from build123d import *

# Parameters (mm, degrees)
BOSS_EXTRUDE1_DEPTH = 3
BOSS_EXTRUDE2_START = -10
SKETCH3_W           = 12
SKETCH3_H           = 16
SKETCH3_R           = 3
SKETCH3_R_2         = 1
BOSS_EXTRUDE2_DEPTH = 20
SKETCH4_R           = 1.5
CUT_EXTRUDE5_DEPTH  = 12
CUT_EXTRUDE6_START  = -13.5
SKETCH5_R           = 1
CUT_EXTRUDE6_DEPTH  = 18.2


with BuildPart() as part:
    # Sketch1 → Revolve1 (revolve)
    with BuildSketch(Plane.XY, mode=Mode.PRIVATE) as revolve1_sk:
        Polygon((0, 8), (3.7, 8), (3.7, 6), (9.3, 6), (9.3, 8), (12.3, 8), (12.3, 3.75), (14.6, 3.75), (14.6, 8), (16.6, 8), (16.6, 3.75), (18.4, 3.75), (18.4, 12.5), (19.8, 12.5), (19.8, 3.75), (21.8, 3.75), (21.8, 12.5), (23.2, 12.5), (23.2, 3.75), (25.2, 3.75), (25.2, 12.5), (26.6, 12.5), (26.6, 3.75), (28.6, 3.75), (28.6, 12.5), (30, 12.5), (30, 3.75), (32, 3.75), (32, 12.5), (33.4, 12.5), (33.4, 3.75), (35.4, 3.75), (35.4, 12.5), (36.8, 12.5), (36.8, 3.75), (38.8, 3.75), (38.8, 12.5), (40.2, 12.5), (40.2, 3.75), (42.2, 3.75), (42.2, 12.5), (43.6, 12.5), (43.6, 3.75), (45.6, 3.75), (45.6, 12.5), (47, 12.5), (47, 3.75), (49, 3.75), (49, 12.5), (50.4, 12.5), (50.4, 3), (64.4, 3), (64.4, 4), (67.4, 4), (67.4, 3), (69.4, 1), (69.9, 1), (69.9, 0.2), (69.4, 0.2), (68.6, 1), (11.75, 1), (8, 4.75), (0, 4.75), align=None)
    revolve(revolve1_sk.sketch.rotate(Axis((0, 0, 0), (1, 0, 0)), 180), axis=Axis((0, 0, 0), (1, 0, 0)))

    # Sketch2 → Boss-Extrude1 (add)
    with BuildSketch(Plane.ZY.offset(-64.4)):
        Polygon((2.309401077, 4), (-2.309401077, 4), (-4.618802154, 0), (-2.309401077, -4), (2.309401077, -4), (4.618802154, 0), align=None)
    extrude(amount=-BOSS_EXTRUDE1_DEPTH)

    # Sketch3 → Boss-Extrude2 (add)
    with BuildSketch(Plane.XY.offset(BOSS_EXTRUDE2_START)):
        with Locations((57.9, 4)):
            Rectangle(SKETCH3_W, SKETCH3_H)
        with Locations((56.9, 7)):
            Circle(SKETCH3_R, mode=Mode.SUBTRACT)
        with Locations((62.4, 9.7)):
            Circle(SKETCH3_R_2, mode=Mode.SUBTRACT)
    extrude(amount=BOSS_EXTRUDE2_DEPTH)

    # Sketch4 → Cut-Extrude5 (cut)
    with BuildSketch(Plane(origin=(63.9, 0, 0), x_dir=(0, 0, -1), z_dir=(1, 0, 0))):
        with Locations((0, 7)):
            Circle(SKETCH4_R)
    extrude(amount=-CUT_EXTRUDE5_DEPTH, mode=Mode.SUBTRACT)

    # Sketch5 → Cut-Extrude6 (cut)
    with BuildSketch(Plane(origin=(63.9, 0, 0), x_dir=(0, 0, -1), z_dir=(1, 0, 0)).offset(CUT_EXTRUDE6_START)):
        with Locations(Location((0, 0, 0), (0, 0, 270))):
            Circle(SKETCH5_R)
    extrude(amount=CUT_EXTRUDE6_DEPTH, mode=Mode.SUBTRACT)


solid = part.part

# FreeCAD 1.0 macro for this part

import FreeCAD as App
import Part
import Sketcher
from FreeCAD import Vector
Q = App.Units.Quantity


def add_polygon(sketch, points):
    """Adds a closed chain of lines whose ends are joined by coincident constraints."""
    first, n = sketch.GeometryCount, len(points)
    for a, b in zip(points, points[1:] + points[:1]):
        sketch.addGeometry(Part.LineSegment(App.Vector(*a, 0), App.Vector(*b, 0)), False)
    for i in range(n):
        sketch.addConstraint(Sketcher.Constraint("Coincident", first + i, 2, first + (i + 1) % n, 1))

doc = App.newDocument("Part")
body = doc.addObject("PartDesign::Body", "Body")

# Sketch on XY plane
sketch1 = body.newObject("Sketcher::SketchObject", "Sketch")
sketch1.AttachmentSupport = (doc.getObject("XY_Plane"), [""])
sketch1.MapMode = "FlatFace"
add_polygon(sketch1, [(3.7, 8), (0, 8), (0, 4.8), (8, 4.8), (11.8, 1), (68.6, 1), (69.4, 0.2), (69.9, 0.2), (69.9, 1), (69.4, 1), (67.4, 3), (67.4, 4), (64.4, 4), (64.4, 3), (50.4, 3), (50.4, 12.5), (49, 12.5), (49, 3.8), (47, 3.8), (47, 12.5), (45.6, 12.5), (45.6, 3.8), (43.6, 3.8), (43.6, 12.5), (42.2, 12.5), (42.2, 3.8), (40.2, 3.8), (40.2, 12.5), (38.8, 12.5), (38.8, 3.8), (36.8, 3.8), (36.8, 12.5), (35.4, 12.5), (35.4, 3.8), (33.4, 3.8), (33.4, 12.5), (32, 12.5), (32, 3.8), (30, 3.8), (30, 12.5), (28.6, 12.5), (28.6, 3.8), (26.6, 3.8), (26.6, 12.5), (25.2, 12.5), (25.2, 3.8), (23.2, 3.8), (23.2, 12.5), (21.8, 12.5), (21.8, 3.8), (19.8, 3.8), (19.8, 12.5), (18.4, 12.5), (18.4, 3.8), (16.6, 3.8), (16.6, 8), (14.6, 8), (14.6, 3.8), (12.3, 3.8), (12.3, 8), (9.3, 8), (9.3, 6), (3.7, 6)])  # lines 0-62
sketch1.addConstraint([
    Sketcher.Constraint("Horizontal", 0),
    Sketcher.Constraint("Vertical", 1),
    Sketcher.Constraint("Horizontal", 2),
    Sketcher.Constraint("Horizontal", 4),
    Sketcher.Constraint("Horizontal", 6),
    Sketcher.Constraint("Vertical", 7),
    Sketcher.Constraint("Horizontal", 8),
    Sketcher.Constraint("Vertical", 10),
    Sketcher.Constraint("Horizontal", 11),
    Sketcher.Constraint("Vertical", 12),
    Sketcher.Constraint("Horizontal", 13),
    Sketcher.Constraint("Vertical", 14),
    Sketcher.Constraint("Horizontal", 15),
    Sketcher.Constraint("Vertical", 16),
    Sketcher.Constraint("Horizontal", 17),
    Sketcher.Constraint("Vertical", 18),
    Sketcher.Constraint("Horizontal", 19),
    Sketcher.Constraint("Vertical", 20),
    Sketcher.Constraint("Horizontal", 21),
    Sketcher.Constraint("Vertical", 22),
    Sketcher.Constraint("Horizontal", 23),
    Sketcher.Constraint("Vertical", 24),
    Sketcher.Constraint("Horizontal", 25),
    Sketcher.Constraint("Vertical", 26),
    Sketcher.Constraint("Horizontal", 27),
    Sketcher.Constraint("Vertical", 28),
    Sketcher.Constraint("Horizontal", 29),
    Sketcher.Constraint("Vertical", 30),
    Sketcher.Constraint("Horizontal", 31),
    Sketcher.Constraint("Vertical", 32),
    Sketcher.Constraint("Horizontal", 33),
    Sketcher.Constraint("Vertical", 34),
    Sketcher.Constraint("Horizontal", 35),
    Sketcher.Constraint("Vertical", 36),
    Sketcher.Constraint("Horizontal", 37),
    Sketcher.Constraint("Vertical", 38),
    Sketcher.Constraint("Horizontal", 39),
    Sketcher.Constraint("Vertical", 40),
    Sketcher.Constraint("Horizontal", 41),
    Sketcher.Constraint("Vertical", 42),
    Sketcher.Constraint("Horizontal", 43),
    Sketcher.Constraint("Vertical", 44),
    Sketcher.Constraint("Horizontal", 45),
    Sketcher.Constraint("Vertical", 46),
    Sketcher.Constraint("Horizontal", 47),
    Sketcher.Constraint("Vertical", 48),
    Sketcher.Constraint("Horizontal", 49),
    Sketcher.Constraint("Vertical", 50),
    Sketcher.Constraint("Horizontal", 51),
    Sketcher.Constraint("Vertical", 52),
    Sketcher.Constraint("Horizontal", 53),
    Sketcher.Constraint("Vertical", 54),
    Sketcher.Constraint("Horizontal", 55),
    Sketcher.Constraint("Vertical", 56),
    Sketcher.Constraint("Horizontal", 57),
    Sketcher.Constraint("Vertical", 58),
    Sketcher.Constraint("Horizontal", 59),
    Sketcher.Constraint("Vertical", 60),
    Sketcher.Constraint("Horizontal", 61),
    Sketcher.Constraint("Vertical", 62),
    Sketcher.Constraint("PointOnObject", 0, 2, -2),
    Sketcher.Constraint("Parallel", 3, 5),
    Sketcher.Constraint("Parallel", 5, 9),
    Sketcher.Constraint("Horizontal", 4, 2, 7, 2),
    Sketcher.Constraint("Horizontal", 9, 2, 12, 2),
    Sketcher.Constraint("Horizontal", 15, 2, 18, 2),
    Sketcher.Constraint("Horizontal", 17, 2, 20, 2),
    Sketcher.Constraint("Horizontal", 19, 2, 22, 2),
    Sketcher.Constraint("Horizontal", 21, 2, 24, 2),
    Sketcher.Constraint("Horizontal", 23, 2, 26, 2),
    Sketcher.Constraint("Horizontal", 25, 2, 28, 2),
    Sketcher.Constraint("Horizontal", 27, 2, 30, 2),
    Sketcher.Constraint("Horizontal", 29, 2, 32, 2),
    Sketcher.Constraint("Horizontal", 31, 2, 34, 2),
    Sketcher.Constraint("Horizontal", 33, 2, 36, 2),
    Sketcher.Constraint("Horizontal", 35, 2, 38, 2),
    Sketcher.Constraint("Horizontal", 37, 2, 40, 2),
    Sketcher.Constraint("Horizontal", 39, 2, 42, 2),
    Sketcher.Constraint("Horizontal", 41, 2, 44, 2),
    Sketcher.Constraint("Horizontal", 43, 2, 46, 2),
    Sketcher.Constraint("Horizontal", 45, 2, 48, 2),
    Sketcher.Constraint("Horizontal", 47, 2, 50, 2),
    Sketcher.Constraint("Horizontal", 49, 2, 52, 2),
    Sketcher.Constraint("Horizontal", 0, 2, 54, 2),
    Sketcher.Constraint("Horizontal", 53, 2, 56, 2),
    Sketcher.Constraint("Horizontal", 55, 2, 58, 2),
    Sketcher.Constraint("Vertical", 5, 2, 8, 2),
    Sketcher.Constraint("Equal", 15, 19),
    Sketcher.Constraint("Equal", 17, 21),
    Sketcher.Constraint("Equal", 19, 23),
    Sketcher.Constraint("Equal", 21, 25),
    Sketcher.Constraint("Equal", 23, 27),
    Sketcher.Constraint("Equal", 25, 29),
    Sketcher.Constraint("Equal", 27, 31),
    Sketcher.Constraint("Equal", 29, 33),
    Sketcher.Constraint("Equal", 31, 35),
    Sketcher.Constraint("Equal", 33, 37),
    Sketcher.Constraint("Equal", 35, 39),
    Sketcher.Constraint("Equal", 37, 41),
    Sketcher.Constraint("Equal", 39, 43),
    Sketcher.Constraint("Equal", 41, 45),
    Sketcher.Constraint("Equal", 43, 47),
    Sketcher.Constraint("Equal", 45, 49),
    Sketcher.Constraint("Equal", 47, 51),
    Sketcher.Constraint("Equal", 49, 55),
    Sketcher.Constraint("Equal", 11, 59),
    Sketcher.Constraint("Equal", 55, 60),
    Sketcher.Constraint("DistanceX", 2, 1, 2, 2, 8.0),
    Sketcher.Constraint("DistanceX", 11, 2, 11, 1, 3.0),
    Sketcher.Constraint("DistanceX", 13, 2, 13, 1, 14.0),
    Sketcher.Constraint("DistanceX", 17, 2, 17, 1, 2.0),
    Sketcher.Constraint("DistanceY", 10, 1, 10, 2, 1.0),
    Sketcher.Constraint("Angle", 3, Q("-45 deg")),
    Sketcher.Constraint("DistanceX", 0, 2, 0, 1, 3.7),
    Sketcher.Constraint("DistanceX", 6, 1, 6, 2, 0.5),
    Sketcher.Constraint("DistanceX", 15, 2, 15, 1, 1.4),
    Sketcher.Constraint("DistanceX", 53, 2, 53, 1, 1.8),
    Sketcher.Constraint("DistanceX", 57, 2, 57, 1, 2.3),
    Sketcher.Constraint("DistanceX", 61, 2, 61, 1, 5.6),
    Sketcher.Constraint("DistanceY", 7, 1, 7, 2, 0.8),
    Sketcher.Constraint("DistanceY", 14, 1, 14, 2, 9.5),
    Sketcher.Constraint("DistanceY", -1, 1, 0, 2, 8.0),
    Sketcher.Constraint("DistanceY", -1, 1, 3, 2, 1.0),
    Sketcher.Constraint("DistanceY", -1, 1, 9, 2, 3.0),
    Sketcher.Constraint("DistanceX", 4, 1, 4, 2, 56.85),
    Sketcher.Constraint("DistanceY", 16, 2, 16, 1, 8.75),
])
revolution = body.newObject("PartDesign::Revolution", "Revolution")
revolution.Profile = sketch1
revolution.ReferenceAxis = (sketch1, ["H_Axis"])
revolution.Angle = 360

# Sketch on YZ plane
sketch2 = body.newObject("Sketcher::SketchObject", "Sketch001")
sketch2.AttachmentSupport = (doc.getObject("YZ_Plane"), [""])
sketch2.MapMode = "FlatFace"
sketch2.AttachmentOffset = App.Placement(Vector(0, 0, 64.4), App.Rotation())
add_polygon(sketch2, [(4, 2.3), (4, -2.3), (0, -4.6), (-4, -2.3), (-4, 2.3), (0, 4.6)])  # lines 0-5
sketch2.addConstraint([
    Sketcher.Constraint("Vertical", 0),
    Sketcher.Constraint("Vertical", 3),
    Sketcher.Constraint("Symmetric", 0, 2, 3, 2, -1, 1),
    Sketcher.Constraint("Symmetric", 1, 2, 4, 2, -1, 1),
    Sketcher.Constraint("PointOnObject", 1, 2, -2),
    Sketcher.Constraint("Parallel", 2, 5),
    Sketcher.Constraint("Horizontal", 0, 2, 2, 2),
    Sketcher.Constraint("Angle", 1, Q("-150 deg")),
    Sketcher.Constraint("DistanceX", -1, 1, 0, 2, 4.0),
    Sketcher.Constraint("DistanceY", 0, 2, -1, 1, 2.309401),
])
pad1 = body.newObject("PartDesign::Pad", "Pad")
pad1.Profile = sketch2
pad1.Length = 3

# Sketch on XY plane
sketch3 = body.newObject("Sketcher::SketchObject", "Sketch002")
sketch3.AttachmentSupport = (doc.getObject("XY_Plane"), [""])
sketch3.MapMode = "FlatFace"
sketch3.AttachmentOffset = App.Placement(Vector(0, 0, -10), App.Rotation())
add_polygon(sketch3, [(51.9, 12), (51.9, -4), (63.9, -4), (63.9, 12)])  # lines 0-3
sketch3.addGeometry(Part.Circle(Vector(56.9, 7, 0), Vector(0, 0, 1), 3), False)  # 4
sketch3.addGeometry(Part.Circle(Vector(62.4, 9.7, 0), Vector(0, 0, 1), 1), False)  # 5
sketch3.addConstraint([
    Sketcher.Constraint("Vertical", 0),
    Sketcher.Constraint("Horizontal", 1),
    Sketcher.Constraint("Vertical", 2),
    Sketcher.Constraint("Horizontal", 3),
    Sketcher.Constraint("Diameter", 4, 6.0),
    Sketcher.Constraint("Diameter", 5, 2.0),
    Sketcher.Constraint("DistanceX", 1, 1, 1, 2, 12.0),
    Sketcher.Constraint("DistanceY", 0, 2, 0, 1, 16.0),
    Sketcher.Constraint("DistanceY", -1, 1, 4, 3, 7.0),
    Sketcher.Constraint("DistanceY", 0, 2, -1, 1, 4.0),
    Sketcher.Constraint("DistanceX", 0, 2, 4, 3, 5.0),
    Sketcher.Constraint("DistanceX", -1, 1, 4, 3, 56.9),
    Sketcher.Constraint("DistanceX", -1, 1, 5, 3, 62.4),
    Sketcher.Constraint("DistanceY", -1, 1, 5, 3, 9.7),
])
pad2 = body.newObject("PartDesign::Pad", "Pad001")
pad2.Profile = sketch3
pad2.Length = 20

# Sketch on YZ plane
sketch4 = body.newObject("Sketcher::SketchObject", "Sketch003")
sketch4.AttachmentSupport = (doc.getObject("YZ_Plane"), [""])
sketch4.MapMode = "FlatFace"
sketch4.AttachmentOffset = App.Placement(Vector(0, 0, 63.9), App.Rotation())
sketch4.addGeometry(Part.Circle(Vector(7, 0, 0), Vector(0, 0, 1), 1.5), False)
sketch4.addConstraint([
    Sketcher.Constraint("PointOnObject", 0, 3, -1),
    Sketcher.Constraint("Diameter", 0, 3.0),
    Sketcher.Constraint("DistanceX", -1, 1, 0, 3, 7.0),
])
pocket1 = body.newObject("PartDesign::Pocket", "Pocket")
pocket1.Profile = sketch4
pocket1.Length = 12

# Sketch on YZ plane
sketch5 = body.newObject("Sketcher::SketchObject", "Sketch004")
sketch5.AttachmentSupport = (doc.getObject("YZ_Plane"), [""])
sketch5.MapMode = "FlatFace"
sketch5.AttachmentOffset = App.Placement(Vector(0, 0, 50.4), App.Rotation())
sketch5.addGeometry(Part.Circle(Vector(0, 0, 0), Vector(0, 0, 1), 1), False)
sketch5.addConstraint([
    Sketcher.Constraint("Coincident", 0, 3, -1, 1),
    Sketcher.Constraint("Diameter", 0, 2.0),
])
pocket2 = body.newObject("PartDesign::Pocket", "Pocket001")
pocket2.Profile = sketch5
pocket2.Length = 18.2
pocket2.Reversed = True

doc.recompute()
